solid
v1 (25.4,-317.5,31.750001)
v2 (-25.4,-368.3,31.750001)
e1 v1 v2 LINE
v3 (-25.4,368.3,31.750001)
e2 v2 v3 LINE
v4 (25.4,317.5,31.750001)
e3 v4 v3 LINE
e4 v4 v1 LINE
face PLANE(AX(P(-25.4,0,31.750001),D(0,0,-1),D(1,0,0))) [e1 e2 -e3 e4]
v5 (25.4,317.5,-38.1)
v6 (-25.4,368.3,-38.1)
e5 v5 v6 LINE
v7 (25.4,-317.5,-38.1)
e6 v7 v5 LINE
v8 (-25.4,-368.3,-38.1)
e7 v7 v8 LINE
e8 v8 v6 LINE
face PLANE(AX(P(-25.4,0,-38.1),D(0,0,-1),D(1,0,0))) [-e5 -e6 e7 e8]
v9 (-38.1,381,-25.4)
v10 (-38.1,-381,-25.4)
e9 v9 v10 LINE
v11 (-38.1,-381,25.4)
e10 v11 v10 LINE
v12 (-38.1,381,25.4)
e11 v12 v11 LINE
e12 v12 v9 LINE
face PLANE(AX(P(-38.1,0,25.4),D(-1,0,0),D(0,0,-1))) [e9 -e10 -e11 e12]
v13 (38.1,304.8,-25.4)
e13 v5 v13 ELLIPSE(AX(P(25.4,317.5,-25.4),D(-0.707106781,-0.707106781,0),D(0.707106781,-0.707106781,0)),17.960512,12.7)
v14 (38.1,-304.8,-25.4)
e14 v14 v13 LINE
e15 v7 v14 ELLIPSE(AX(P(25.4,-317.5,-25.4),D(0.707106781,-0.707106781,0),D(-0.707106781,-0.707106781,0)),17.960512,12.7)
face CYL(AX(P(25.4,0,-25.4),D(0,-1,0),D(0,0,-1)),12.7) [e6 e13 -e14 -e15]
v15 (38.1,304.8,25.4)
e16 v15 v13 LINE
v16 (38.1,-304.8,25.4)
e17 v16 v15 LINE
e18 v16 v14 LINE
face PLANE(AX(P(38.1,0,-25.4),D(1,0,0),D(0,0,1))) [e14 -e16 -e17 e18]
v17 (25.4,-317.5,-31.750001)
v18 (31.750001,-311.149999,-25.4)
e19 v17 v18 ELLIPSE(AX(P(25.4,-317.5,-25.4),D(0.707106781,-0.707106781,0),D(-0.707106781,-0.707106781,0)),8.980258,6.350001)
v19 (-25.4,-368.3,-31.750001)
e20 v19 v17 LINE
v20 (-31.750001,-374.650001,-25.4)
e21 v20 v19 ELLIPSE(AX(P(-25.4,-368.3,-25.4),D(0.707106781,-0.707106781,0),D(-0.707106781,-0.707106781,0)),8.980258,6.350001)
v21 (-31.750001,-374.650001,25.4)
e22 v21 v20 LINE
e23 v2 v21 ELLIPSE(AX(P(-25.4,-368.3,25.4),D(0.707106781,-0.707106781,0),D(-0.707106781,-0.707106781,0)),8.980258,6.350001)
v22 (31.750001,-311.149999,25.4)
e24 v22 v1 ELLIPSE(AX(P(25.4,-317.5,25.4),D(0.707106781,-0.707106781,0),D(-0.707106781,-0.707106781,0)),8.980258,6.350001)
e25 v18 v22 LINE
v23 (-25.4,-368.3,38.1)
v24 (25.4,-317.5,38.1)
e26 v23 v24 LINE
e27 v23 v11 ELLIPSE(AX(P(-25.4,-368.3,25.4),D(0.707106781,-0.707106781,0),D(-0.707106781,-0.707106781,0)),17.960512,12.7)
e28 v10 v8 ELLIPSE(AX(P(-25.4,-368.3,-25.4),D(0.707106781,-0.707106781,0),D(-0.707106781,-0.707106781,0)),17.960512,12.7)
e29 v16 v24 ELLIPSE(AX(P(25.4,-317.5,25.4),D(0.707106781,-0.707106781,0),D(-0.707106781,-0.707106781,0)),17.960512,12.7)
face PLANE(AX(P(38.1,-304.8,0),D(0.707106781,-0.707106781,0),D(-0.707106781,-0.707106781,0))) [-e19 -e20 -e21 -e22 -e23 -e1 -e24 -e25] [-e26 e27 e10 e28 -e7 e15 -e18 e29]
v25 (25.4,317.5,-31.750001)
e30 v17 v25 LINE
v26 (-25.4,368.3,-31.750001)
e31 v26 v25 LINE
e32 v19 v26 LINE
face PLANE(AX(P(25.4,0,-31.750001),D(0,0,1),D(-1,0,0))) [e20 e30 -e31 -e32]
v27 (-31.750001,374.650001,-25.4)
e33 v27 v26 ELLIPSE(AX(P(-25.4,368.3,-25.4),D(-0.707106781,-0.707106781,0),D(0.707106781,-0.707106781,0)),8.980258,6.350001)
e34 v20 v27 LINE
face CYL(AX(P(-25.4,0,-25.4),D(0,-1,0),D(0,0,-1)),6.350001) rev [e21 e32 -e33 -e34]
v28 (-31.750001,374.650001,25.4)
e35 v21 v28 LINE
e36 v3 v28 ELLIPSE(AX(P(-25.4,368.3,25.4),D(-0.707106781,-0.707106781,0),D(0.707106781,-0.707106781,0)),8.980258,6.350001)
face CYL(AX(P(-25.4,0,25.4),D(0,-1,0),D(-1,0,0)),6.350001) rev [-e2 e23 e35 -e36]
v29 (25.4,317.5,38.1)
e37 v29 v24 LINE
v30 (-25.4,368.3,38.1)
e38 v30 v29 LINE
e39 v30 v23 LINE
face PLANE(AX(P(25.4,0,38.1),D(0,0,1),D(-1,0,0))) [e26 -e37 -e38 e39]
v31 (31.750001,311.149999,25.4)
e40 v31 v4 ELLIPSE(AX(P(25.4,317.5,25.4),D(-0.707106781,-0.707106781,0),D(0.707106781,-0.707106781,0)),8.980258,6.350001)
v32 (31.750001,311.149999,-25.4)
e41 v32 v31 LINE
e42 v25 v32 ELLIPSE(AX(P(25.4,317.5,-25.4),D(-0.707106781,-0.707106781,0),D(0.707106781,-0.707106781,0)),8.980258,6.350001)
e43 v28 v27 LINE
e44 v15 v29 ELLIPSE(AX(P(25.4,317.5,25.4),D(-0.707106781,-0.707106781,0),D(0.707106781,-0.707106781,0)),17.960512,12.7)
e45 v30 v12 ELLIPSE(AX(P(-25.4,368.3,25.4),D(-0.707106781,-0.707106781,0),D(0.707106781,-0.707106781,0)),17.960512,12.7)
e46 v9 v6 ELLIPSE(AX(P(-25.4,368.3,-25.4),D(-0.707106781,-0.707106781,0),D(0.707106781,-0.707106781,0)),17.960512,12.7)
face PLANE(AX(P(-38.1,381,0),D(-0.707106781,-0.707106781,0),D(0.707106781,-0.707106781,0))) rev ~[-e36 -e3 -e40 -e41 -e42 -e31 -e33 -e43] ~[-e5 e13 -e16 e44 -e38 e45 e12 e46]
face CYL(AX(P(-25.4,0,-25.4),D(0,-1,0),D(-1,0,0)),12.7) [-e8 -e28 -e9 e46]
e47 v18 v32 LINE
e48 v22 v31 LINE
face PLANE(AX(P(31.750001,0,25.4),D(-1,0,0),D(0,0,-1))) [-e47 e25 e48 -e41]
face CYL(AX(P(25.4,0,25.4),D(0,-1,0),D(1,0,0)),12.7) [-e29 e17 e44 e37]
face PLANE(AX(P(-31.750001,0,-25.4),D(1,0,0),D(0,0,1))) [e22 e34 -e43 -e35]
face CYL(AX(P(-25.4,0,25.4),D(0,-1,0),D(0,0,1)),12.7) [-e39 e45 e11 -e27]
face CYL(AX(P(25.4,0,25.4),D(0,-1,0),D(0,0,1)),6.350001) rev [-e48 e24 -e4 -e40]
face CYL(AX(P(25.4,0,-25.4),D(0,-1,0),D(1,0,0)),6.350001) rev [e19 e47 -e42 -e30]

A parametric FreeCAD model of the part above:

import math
import FreeCAD as App
import Part
import Sketcher
Q = App.Units.Quantity


def add_polygon(sketch, points):
    """Adds a closed chain of lines whose ends are joined by coincident constraints."""
    first, n = sketch.GeometryCount, len(points)
    for a, b in zip(points, points[1:] + points[:1]):
        sketch.addGeometry(Part.LineSegment(App.Vector(*a, 0), App.Vector(*b, 0)), False)
    for i in range(n):
        sketch.addConstraint(Sketcher.Constraint("Coincident", first + i, 2, first + (i + 1) % n, 1))

doc = App.newDocument("Part")
params = doc.addObject("Spreadsheet::Sheet", "Params")
for row, (alias, value) in enumerate([
    ("sketch1_radius", "0.5 in"),
    ("sketch1_width", "2 in"),
    ("sketch1_radius2", "0.25 in"),
    ("pad1_length", "30 in"),
    ("sketch2_width", "3 in"),
    ("pocket1_length", "4 in"),
], start=1):
    params.set(f"A{row}", alias)
    params.set(f"B{row}", "=" + value)
    params.setAlias(f"B{row}", alias)

body = doc.addObject("PartDesign::Body", "Body")

sketch1 = doc.addObject("Sketcher::SketchObject", "Sketch")
body.addObject(sketch1)
sketch1.AttachmentSupport = (doc.XZ_Plane, [""])
sketch1.MapMode = "FlatFace"
sketch1.addGeometry([
    Part.ArcOfCircle(Part.Circle(App.Vector(25, 25, 0), App.Vector(0, 0, 1), 13), math.radians(0), math.radians(90)),
    Part.LineSegment(App.Vector(25, 38, 0), App.Vector(-25, 38, 0)),
    Part.ArcOfCircle(Part.Circle(App.Vector(-25, 25, 0), App.Vector(0, 0, 1), 13), math.radians(90), math.radians(180)),
    Part.LineSegment(App.Vector(-38, 25, 0), App.Vector(-38, -25, 0)),
    Part.ArcOfCircle(Part.Circle(App.Vector(-25, -25, 0), App.Vector(0, 0, 1), 13), math.radians(180), math.radians(270)),
    Part.LineSegment(App.Vector(-25, -38, 0), App.Vector(25, -38, 0)),
    Part.ArcOfCircle(Part.Circle(App.Vector(25, -25, 0), App.Vector(0, 0, 1), 13), math.radians(-90), math.radians(0)),
    Part.LineSegment(App.Vector(38, -25, 0), App.Vector(38, 25, 0)),
    Part.LineSegment(App.Vector(-25, 32, 0), App.Vector(25, 32, 0)),
    Part.ArcOfCircle(Part.Circle(App.Vector(25, 25, 0), App.Vector(0, 0, 1), 6), math.radians(0), math.radians(90)),
    Part.LineSegment(App.Vector(32, 25, 0), App.Vector(32, -25, 0)),
    Part.ArcOfCircle(Part.Circle(App.Vector(25, -25, 0), App.Vector(0, 0, 1), 6), math.radians(-90), math.radians(0)),
    Part.LineSegment(App.Vector(25, -32, 0), App.Vector(-25, -32, 0)),
    Part.ArcOfCircle(Part.Circle(App.Vector(-25, -25, 0), App.Vector(0, 0, 1), 6), math.radians(180), math.radians(270)),
    Part.LineSegment(App.Vector(-32, -25, 0), App.Vector(-32, 25, 0)),
    Part.ArcOfCircle(Part.Circle(App.Vector(-25, 25, 0), App.Vector(0, 0, 1), 6), math.radians(90), math.radians(180)),
], False)
sketch1.addConstraint([
    Sketcher.Constraint("Tangent", 0, 2, 1, 1),
    Sketcher.Constraint("Tangent", 1, 2, 2, 1),
    Sketcher.Constraint("Tangent", 2, 2, 3, 1),
    Sketcher.Constraint("Tangent", 3, 2, 4, 1),
    Sketcher.Constraint("Tangent", 4, 2, 5, 1),
    Sketcher.Constraint("Tangent", 5, 2, 6, 1),
    Sketcher.Constraint("Tangent", 6, 2, 7, 1),
    Sketcher.Constraint("Tangent", 7, 2, 0, 1),
    Sketcher.Constraint("Tangent", 8, 2, 9, 2),
    Sketcher.Constraint("Tangent", 9, 1, 10, 1),
    Sketcher.Constraint("Tangent", 10, 2, 11, 2),
    Sketcher.Constraint("Tangent", 11, 1, 12, 1),
    Sketcher.Constraint("Tangent", 12, 2, 13, 2),
    Sketcher.Constraint("Tangent", 13, 1, 14, 1),
    Sketcher.Constraint("Tangent", 14, 2, 15, 2),
    Sketcher.Constraint("Tangent", 15, 1, 8, 1),
    Sketcher.Constraint("Horizontal", 1),
    Sketcher.Constraint("Vertical", 3),
    Sketcher.Constraint("Horizontal", 5),
    Sketcher.Constraint("Vertical", 7),
    Sketcher.Constraint("Horizontal", 8),
    Sketcher.Constraint("Vertical", 10),
    Sketcher.Constraint("Horizontal", 12),
    Sketcher.Constraint("Vertical", 14),
    Sketcher.Constraint("Coincident", 9, 3, 0, 3),
    Sketcher.Constraint("Coincident", 11, 3, 6, 3),
    Sketcher.Constraint("Coincident", 13, 3, 4, 3),
    Sketcher.Constraint("Equal", 0, 2),
    Sketcher.Constraint("Equal", 2, 4),
    Sketcher.Constraint("Equal", 4, 6),
    Sketcher.Constraint("Equal", 13, 15),
    Sketcher.Constraint("Symmetric", 0, 3, 4, 3, -1, 1),
    Sketcher.Constraint("Equal", 12, 3),
    Sketcher.Constraint("Radius", 0, Q("0.5 in")),
    Sketcher.Constraint("DistanceX", 1, 2, 1, 1, Q("2 in")),
    Sketcher.Constraint("Radius", 9, Q("0.25 in")),
])
sketch1.setExpression("Constraints[33]", "Params.sketch1_radius")
sketch1.setExpression("Constraints[34]", "Params.sketch1_width")
sketch1.setExpression("Constraints[35]", "Params.sketch1_radius2")
pad1 = doc.addObject("PartDesign::Pad", "Pad")
body.addObject(pad1)
pad1.Profile = sketch1
pad1.setExpression("Length", "Params.pad1_length")
pad1.Midplane = True

sketch2 = doc.addObject("Sketcher::SketchObject", "Sketch001")
body.addObject(sketch2)
sketch2.AttachmentSupport = (doc.XY_Plane, [""])
sketch2.MapMode = "FlatFace"
add_polygon(sketch2, [(38, -305), (-38, -381), (38, -381)])
add_polygon(sketch2, [(38, 381), (-38, 381), (38, 305)])
sketch2.addConstraint([
    Sketcher.Constraint("Horizontal", 1),
    Sketcher.Constraint("Vertical", 2),
    Sketcher.Constraint("Horizontal", 3),
    Sketcher.Constraint("Vertical", 5),
    Sketcher.Constraint("Symmetric", 1, 2, 3, 2, -1, 1),
    Sketcher.Constraint("Symmetric", 2, 2, 4, 2, -1),
    Sketcher.Constraint("Perpendicular", 0, 4),
    Sketcher.Constraint("Vertical", 0, 2, 3, 2),
    Sketcher.Constraint("DistanceX", 1, 1, 1, 2, Q("3 in")),
    Sketcher.Constraint("DistanceY", 0, 2, -1, 1, Q("15 in")),
])
sketch2.setExpression("Constraints[14]", "Params.sketch2_width")
pocket1 = doc.addObject("PartDesign::Pocket", "Pocket")
body.addObject(pocket1)
pocket1.Profile = sketch2
pocket1.setExpression("Length", "Params.pocket1_length")
pocket1.Midplane = True

doc.recompute()
